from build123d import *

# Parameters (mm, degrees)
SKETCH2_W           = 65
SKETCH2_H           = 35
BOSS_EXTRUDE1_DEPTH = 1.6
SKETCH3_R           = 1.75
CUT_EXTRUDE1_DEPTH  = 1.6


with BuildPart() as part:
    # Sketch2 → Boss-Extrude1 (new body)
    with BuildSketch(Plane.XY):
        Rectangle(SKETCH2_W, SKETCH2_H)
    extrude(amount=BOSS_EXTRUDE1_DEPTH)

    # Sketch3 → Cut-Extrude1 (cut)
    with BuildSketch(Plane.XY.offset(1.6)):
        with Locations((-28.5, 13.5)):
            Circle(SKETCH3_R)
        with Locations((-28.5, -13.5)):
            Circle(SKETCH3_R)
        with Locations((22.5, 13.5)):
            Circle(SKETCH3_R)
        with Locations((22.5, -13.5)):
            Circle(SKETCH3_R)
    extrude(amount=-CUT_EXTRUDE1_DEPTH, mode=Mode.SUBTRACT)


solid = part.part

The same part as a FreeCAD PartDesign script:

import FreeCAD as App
import Part
import Sketcher

V = App.Vector


def add_polygon(sketch, points):
    """Adds a closed chain of lines whose ends are joined by coincident constraints."""
    first, n = sketch.GeometryCount, len(points)
    for a, b in zip(points, points[1:] + points[:1]):
        sketch.addGeometry(Part.LineSegment(App.Vector(*a, 0), App.Vector(*b, 0)), False)
    for i in range(n):
        sketch.addConstraint(Sketcher.Constraint("Coincident", first + i, 2, first + (i + 1) % n, 1))

doc = App.newDocument("Part")
body = doc.addObject("PartDesign::Body", "Body")

# Sketch on XY plane
sketch1 = body.newObject("Sketcher::SketchObject", "Sketch")
sketch1.AttachmentSupport = (doc.getObject("XY_Plane"), [""])
sketch1.MapMode = "FlatFace"
add_polygon(sketch1, [(-32, 18), (-32, -18), (32, -18), (32, 18)])  # lines 0-3
sketch1.addConstraint(Sketcher.Constraint("Vertical", 0))
sketch1.addConstraint(Sketcher.Constraint("Horizontal", 1))
sketch1.addConstraint(Sketcher.Constraint("Vertical", 2))
sketch1.addConstraint(Sketcher.Constraint("Horizontal", 3))
sketch1.addConstraint(Sketcher.Constraint("Symmetric", 0, 2, 2, 2, -1, 1))
sketch1.addConstraint(Sketcher.Constraint("DistanceX", 1, 1, 1, 2, 65.0))
sketch1.addConstraint(Sketcher.Constraint("DistanceY", 0, 2, 0, 1, 35.0))
pad1 = body.newObject("PartDesign::Pad", "Pad")
pad1.Profile = sketch1
pad1.Length = 1.6

# Sketch on XY plane
sketch2 = body.newObject("Sketcher::SketchObject", "Sketch001")
sketch2.AttachmentSupport = (doc.getObject("XY_Plane"), [""])
sketch2.MapMode = "FlatFace"
sketch2.AttachmentOffset = App.Placement(V(0, 0, 1.6), App.Rotation())
sketch2.addGeometry(Part.Circle(V(-28.5, 13.5, 0), V(0, 0, 1), 1.8), False)
sketch2.addGeometry(Part.Circle(V(-28.5, -13.5, 0), V(0, 0, 1), 1.8), False)
sketch2.addGeometry(Part.Circle(V(22.5, 13.5, 0), V(0, 0, 1), 1.8), False)
sketch2.addGeometry(Part.Circle(V(22.5, -13.5, 0), V(0, 0, 1), 1.8), False)
sketch2.addConstraint(Sketcher.Constraint("Equal", 0, 1))
sketch2.addConstraint(Sketcher.Constraint("Equal", 1, 2))
sketch2.addConstraint(Sketcher.Constraint("Equal", 2, 3))
sketch2.addConstraint(Sketcher.Constraint("Symmetric", 0, 3, 1, 3, -1))
sketch2.addConstraint(Sketcher.Constraint("Symmetric", 2, 3, 3, 3, -1))
sketch2.addConstraint(Sketcher.Constraint("Horizontal", 0, 3, 2, 3))
sketch2.addConstraint(Sketcher.Constraint("Diameter", 0, 3.5))
sketch2.addConstraint(Sketcher.Constraint("DistanceY", 1, 3, 0, 3, 27.0))
sketch2.addConstraint(Sketcher.Constraint("DistanceX", 0, 3, 2, 3, 51.0))
sketch2.addConstraint(Sketcher.Constraint("DistanceX", 0, 3, -1, 1, 28.5))
pocket1 = body.newObject("PartDesign::Pocket", "Pocket")
pocket1.Profile = sketch2
pocket1.Length = 1.6

doc.recompute()
